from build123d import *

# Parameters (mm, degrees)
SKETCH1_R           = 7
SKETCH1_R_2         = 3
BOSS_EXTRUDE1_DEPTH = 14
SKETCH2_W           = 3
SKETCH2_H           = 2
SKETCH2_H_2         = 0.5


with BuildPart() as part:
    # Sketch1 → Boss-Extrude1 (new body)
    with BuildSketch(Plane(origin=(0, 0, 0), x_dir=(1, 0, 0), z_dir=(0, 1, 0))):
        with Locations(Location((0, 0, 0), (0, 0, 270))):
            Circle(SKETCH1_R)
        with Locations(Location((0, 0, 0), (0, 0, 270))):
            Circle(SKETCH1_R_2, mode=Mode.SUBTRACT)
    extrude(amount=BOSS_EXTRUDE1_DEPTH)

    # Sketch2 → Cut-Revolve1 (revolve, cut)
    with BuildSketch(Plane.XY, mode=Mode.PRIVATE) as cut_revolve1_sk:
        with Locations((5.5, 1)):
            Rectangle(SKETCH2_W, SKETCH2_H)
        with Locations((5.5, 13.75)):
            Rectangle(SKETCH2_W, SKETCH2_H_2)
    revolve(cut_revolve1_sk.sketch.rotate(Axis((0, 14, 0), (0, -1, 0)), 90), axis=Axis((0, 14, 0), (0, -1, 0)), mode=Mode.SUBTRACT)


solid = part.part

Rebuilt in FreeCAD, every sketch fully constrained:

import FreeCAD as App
import Part
import Sketcher

doc = App.newDocument("Part")
body = doc.addObject("PartDesign::Body", "Body")

# Sketch on XZ plane
sketch1 = doc.addObject("Sketcher::SketchObject", "Sketch")
body.addObject(sketch1)
sketch1.AttachmentSupport = (doc.XZ_Plane, [""])
sketch1.MapMode = "FlatFace"
sketch1.addGeometry(Part.Circle(App.Vector(0, 0, 0), App.Vector(0, 0, 1), 7), False)
sketch1.addGeometry(Part.Circle(App.Vector(0, 0, 0), App.Vector(0, 0, 1), 3), False)
sketch1.addConstraint(Sketcher.Constraint("Coincident", 0, 3, -1, 1))
sketch1.addConstraint(Sketcher.Constraint("Coincident", 1, 3, -1, 1))
sketch1.addConstraint(Sketcher.Constraint("Diameter", 0, 14.0))
sketch1.addConstraint(Sketcher.Constraint("Diameter", 1, 6.0))
pad1 = doc.addObject("PartDesign::Pad", "Pad")
body.addObject(pad1)
pad1.Profile = sketch1
pad1.Length = 14
pad1.Reversed = True

# Sketch on XY plane
sketch2 = doc.addObject("Sketcher::SketchObject", "Sketch001")
body.addObject(sketch2)
sketch2.AttachmentSupport = (doc.XY_Plane, [""])
sketch2.MapMode = "FlatFace"
sketch2.addGeometry(Part.LineSegment(App.Vector(4, 2, 0), App.Vector(4, 0, 0)), False)
sketch2.addGeometry(Part.LineSegment(App.Vector(4, 0, 0), App.Vector(7, 0, 0)), False)
sketch2.addGeometry(Part.LineSegment(App.Vector(7, 0, 0), App.Vector(7, 2, 0)), False)
sketch2.addGeometry(Part.LineSegment(App.Vector(7, 2, 0), App.Vector(4, 2, 0)), False)
sketch2.addGeometry(Part.LineSegment(App.Vector(4, 14, 0), App.Vector(4, 13.5, 0)), False)
sketch2.addGeometry(Part.LineSegment(App.Vector(4, 13.5, 0), App.Vector(7, 13.5, 0)), False)
sketch2.addGeometry(Part.LineSegment(App.Vector(7, 13.5, 0), App.Vector(7, 14, 0)), False)
sketch2.addGeometry(Part.LineSegment(App.Vector(7, 14, 0), App.Vector(4, 14, 0)), False)
sketch2.addConstraint(Sketcher.Constraint("Coincident", 0, 2, 1, 1))
sketch2.addConstraint(Sketcher.Constraint("Coincident", 1, 2, 2, 1))
sketch2.addConstraint(Sketcher.Constraint("Coincident", 2, 2, 3, 1))
sketch2.addConstraint(Sketcher.Constraint("Coincident", 3, 2, 0, 1))
sketch2.addConstraint(Sketcher.Constraint("Coincident", 4, 2, 5, 1))
sketch2.addConstraint(Sketcher.Constraint("Coincident", 5, 2, 6, 1))
sketch2.addConstraint(Sketcher.Constraint("Coincident", 6, 2, 7, 1))
sketch2.addConstraint(Sketcher.Constraint("Coincident", 7, 2, 4, 1))
sketch2.addConstraint(Sketcher.Constraint("Vertical", 0))
sketch2.addConstraint(Sketcher.Constraint("Horizontal", 1))
sketch2.addConstraint(Sketcher.Constraint("Vertical", 2))
sketch2.addConstraint(Sketcher.Constraint("Horizontal", 3))
sketch2.addConstraint(Sketcher.Constraint("Vertical", 4))
sketch2.addConstraint(Sketcher.Constraint("Horizontal", 5))
sketch2.addConstraint(Sketcher.Constraint("Vertical", 6))
sketch2.addConstraint(Sketcher.Constraint("Horizontal", 7))
sketch2.addConstraint(Sketcher.Constraint("PointOnObject", 0, 2, -1))
sketch2.addConstraint(Sketcher.Constraint("Vertical", 3, 2, 4, 2))
sketch2.addConstraint(Sketcher.Constraint("Vertical", 2, 2, 5, 2))
sketch2.addConstraint(Sketcher.Constraint("DistanceX", 1, 1, 1, 2, 3.0))
sketch2.addConstraint(Sketcher.Constraint("DistanceY", 0, 2, 0, 1, 2.0))
sketch2.addConstraint(Sketcher.Constraint("DistanceY", 4, 2, 4, 1, 0.5))
sketch2.addConstraint(Sketcher.Constraint("DistanceX", -1, 1, 0, 2, 4.0))
sketch2.addConstraint(Sketcher.Constraint("DistanceY", -1, 1, 6, 2, 14.0))
groove = doc.addObject("PartDesign::Groove", "Groove")
body.addObject(groove)
groove.Profile = sketch2
groove.ReferenceAxis = (sketch2, ["V_Axis"])
groove.Angle = 360

doc.recompute()
